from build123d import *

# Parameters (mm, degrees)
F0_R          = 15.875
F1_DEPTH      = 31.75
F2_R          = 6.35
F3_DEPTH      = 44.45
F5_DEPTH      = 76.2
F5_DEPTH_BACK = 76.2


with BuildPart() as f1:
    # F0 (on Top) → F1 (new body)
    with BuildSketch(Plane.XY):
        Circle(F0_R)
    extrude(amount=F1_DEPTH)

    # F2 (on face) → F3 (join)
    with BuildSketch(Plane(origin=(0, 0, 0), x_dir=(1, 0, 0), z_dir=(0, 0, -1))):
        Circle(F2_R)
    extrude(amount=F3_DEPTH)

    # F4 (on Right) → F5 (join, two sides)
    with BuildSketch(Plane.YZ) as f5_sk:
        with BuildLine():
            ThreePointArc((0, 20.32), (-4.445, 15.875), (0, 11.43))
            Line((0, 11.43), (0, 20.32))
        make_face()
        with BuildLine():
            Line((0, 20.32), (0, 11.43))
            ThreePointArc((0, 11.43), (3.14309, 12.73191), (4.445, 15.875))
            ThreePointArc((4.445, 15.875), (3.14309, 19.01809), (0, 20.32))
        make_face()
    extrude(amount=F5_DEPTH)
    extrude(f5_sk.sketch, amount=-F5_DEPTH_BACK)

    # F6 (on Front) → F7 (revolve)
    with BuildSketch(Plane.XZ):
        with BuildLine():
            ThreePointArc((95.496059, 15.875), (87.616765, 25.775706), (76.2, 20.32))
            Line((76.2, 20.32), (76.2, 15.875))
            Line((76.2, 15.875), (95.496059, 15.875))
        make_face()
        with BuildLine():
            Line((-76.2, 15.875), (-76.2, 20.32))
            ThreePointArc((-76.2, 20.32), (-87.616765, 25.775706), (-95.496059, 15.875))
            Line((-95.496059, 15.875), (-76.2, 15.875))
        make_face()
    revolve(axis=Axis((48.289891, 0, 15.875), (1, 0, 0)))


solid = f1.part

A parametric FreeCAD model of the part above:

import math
import FreeCAD as App
import Part
import Sketcher
Q = App.Units.Quantity

doc = App.newDocument("Part")
params = doc.addObject("Spreadsheet::Sheet", "Params")
for row, (alias, value) in enumerate([
    ("sketch1_diameter", "1.25 in"),
    ("pad1_length", "1.25 in"),
    ("sketch2_diameter", "0.5 in"),
    ("pad2_length", "1.75 in"),
    ("sketch3_radius", "0.175 in"),
    ("pad3_length", "3 in"),
    ("pad3_length2", "3 in"),
    ("sketch4_radius", "0.4 in"),
    ("sketch4_height", "0.175 in"),
    ("revolution_angle", "360 deg"),
], start=1):
    params.set(f"A{row}", alias)
    params.set(f"B{row}", "=" + value)
    params.setAlias(f"B{row}", alias)

body = doc.addObject("PartDesign::Body", "Body")

sketch1 = body.newObject("Sketcher::SketchObject", "Sketch")
sketch1.AttachmentSupport = (doc.getObject("XY_Plane"), [""])
sketch1.MapMode = "FlatFace"
sketch1.addGeometry(Part.Circle(App.Vector(0, 0, 0), App.Vector(0, 0, 1), 16), False)
sketch1.addConstraint(Sketcher.Constraint("Coincident", 0, 3, -1, 1))
sketch1.addConstraint(Sketcher.Constraint("Diameter", 0, Q("1.25 in")))
sketch1.setExpression("Constraints[1]", "Params.sketch1_diameter")
pad1 = body.newObject("PartDesign::Pad", "Pad")
pad1.Profile = sketch1
pad1.setExpression("Length", "Params.pad1_length")

sketch2 = body.newObject("Sketcher::SketchObject", "Sketch001")
sketch2.AttachmentSupport = (doc.getObject("XY_Plane"), [""])
sketch2.MapMode = "FlatFace"
sketch2.addGeometry(Part.Circle(App.Vector(0, 0, 0), App.Vector(0, 0, 1), 6), False)
sketch2.addConstraint(Sketcher.Constraint("Coincident", 0, 3, -1, 1))
sketch2.addConstraint(Sketcher.Constraint("Diameter", 0, Q("0.5 in")))
sketch2.setExpression("Constraints[1]", "Params.sketch2_diameter")
pad2 = body.newObject("PartDesign::Pad", "Pad001")
pad2.Profile = sketch2
pad2.setExpression("Length", "Params.pad2_length")
pad2.Reversed = True

sketch3 = body.newObject("Sketcher::SketchObject", "Sketch002")
sketch3.AttachmentSupport = (doc.getObject("YZ_Plane"), [""])
sketch3.MapMode = "FlatFace"
sketch3.addGeometry(Part.ArcOfCircle(Part.Circle(App.Vector(0, 15.9, 0), App.Vector(0, 0, 1), 4.4), math.radians(90), math.radians(270)), False)
sketch3.addGeometry(Part.ArcOfCircle(Part.Circle(App.Vector(0, 15.9, 0), App.Vector(0, 0, 1), 4.4), math.radians(-90), math.radians(0)), False)
sketch3.addGeometry(Part.ArcOfCircle(Part.Circle(App.Vector(0, 15.9, 0), App.Vector(0, 0, 1), 4.4), math.radians(0), math.radians(90)), False)
sketch3.addConstraint(Sketcher.Constraint("Tangent", 0, 2, 1, 1))
sketch3.addConstraint(Sketcher.Constraint("Tangent", 1, 2, 2, 1))
sketch3.addConstraint(Sketcher.Constraint("Tangent", 2, 2, 0, 1))
sketch3.addConstraint(Sketcher.Constraint("PointOnObject", 0, 3, -2))
sketch3.addConstraint(Sketcher.Constraint("PointOnObject", 0, 2, -2))
sketch3.addConstraint(Sketcher.Constraint("PointOnObject", 2, 2, -2))
sketch3.addConstraint(Sketcher.Constraint("Horizontal", 2, 3, 1, 2))
sketch3.addConstraint(Sketcher.Constraint("Radius", 0, Q("0.175 in")))
sketch3.addConstraint(Sketcher.Constraint("DistanceY", -1, 1, 2, 2, Q("0.8 in")))
sketch3.setExpression("Constraints[7]", "Params.sketch3_radius")
pad3 = body.newObject("PartDesign::Pad", "Pad002")
pad3.Profile = sketch3
pad3.Type = "TwoLengths"
pad3.setExpression("Length", "Params.pad3_length")
pad3.setExpression("Length2", "Params.pad3_length2")

sketch4 = body.newObject("Sketcher::SketchObject", "Sketch003")
sketch4.AttachmentSupport = (doc.getObject("XZ_Plane"), [""])
sketch4.MapMode = "FlatFace"
sketch4.addGeometry(Part.ArcOfCircle(Part.Circle(App.Vector(85.3, 15.9, 0), App.Vector(0, 0, 1), 10.2), math.radians(0), math.radians(154)), False)
sketch4.addGeometry(Part.LineSegment(App.Vector(76.2, 20.3, 0), App.Vector(76.2, 15.9, 0)), False)
sketch4.addGeometry(Part.LineSegment(App.Vector(76.2, 15.9, 0), App.Vector(95.5, 15.9, 0)), False)
sketch4.addGeometry(Part.LineSegment(App.Vector(-76.2, 15.9, 0), App.Vector(-76.2, 20.3, 0)), False)
sketch4.addGeometry(Part.ArcOfCircle(Part.Circle(App.Vector(-85.3, 15.9, 0), App.Vector(0, 0, 1), 10.2), math.radians(26), math.radians(180)), False)
sketch4.addGeometry(Part.LineSegment(App.Vector(-95.5, 15.9, 0), App.Vector(-76.2, 15.9, 0)), False)
sketch4.addGeometry(Part.LineSegment(App.Vector(-95.5, 15.9, 0), App.Vector(95.5, 15.9, 0)), True)
sketch4.addConstraint(Sketcher.Constraint("Coincident", 0, 2, 1, 1))
sketch4.addConstraint(Sketcher.Constraint("Coincident", 1, 2, 2, 1))
sketch4.addConstraint(Sketcher.Constraint("Coincident", 2, 2, 0, 1))
sketch4.addConstraint(Sketcher.Constraint("Coincident", 3, 2, 4, 1))
sketch4.addConstraint(Sketcher.Constraint("Coincident", 4, 2, 5, 1))
sketch4.addConstraint(Sketcher.Constraint("Coincident", 5, 2, 3, 1))
sketch4.addConstraint(Sketcher.Constraint("Vertical", 1))
sketch4.addConstraint(Sketcher.Constraint("Horizontal", 2))
sketch4.addConstraint(Sketcher.Constraint("Vertical", 3))
sketch4.addConstraint(Sketcher.Constraint("Horizontal", 5))
sketch4.addConstraint(Sketcher.Constraint("Horizontal", 6))
sketch4.addConstraint(Sketcher.Constraint("Coincident", 6, 1, 4, 2))
sketch4.addConstraint(Sketcher.Constraint("Coincident", 6, 2, 2, 2))
sketch4.addConstraint(Sketcher.Constraint("Equal", 0, 4))
sketch4.addConstraint(Sketcher.Constraint("Symmetric", 0, 3, 4, 3, -2))
sketch4.addConstraint(Sketcher.Constraint("Horizontal", 4, 3, 1, 2))
sketch4.addConstraint(Sketcher.Constraint("Horizontal", 0, 2, 3, 2))
sketch4.addConstraint(Sketcher.Constraint("Radius", 0, Q("0.4 in")))
sketch4.addConstraint(Sketcher.Constraint("DistanceX", -1, 1, 0, 2, Q("3 in")))
sketch4.addConstraint(Sketcher.Constraint("DistanceY", -1, 1, 0, 2, Q("0.8 in")))
sketch4.addConstraint(Sketcher.Constraint("DistanceY", 1, 2, 1, 1, Q("0.175 in")))
sketch4.setExpression("Constraints[17]", "Params.sketch4_radius")
sketch4.setExpression("Constraints[20]", "Params.sketch4_height")
revolution = body.newObject("PartDesign::Revolution", "Revolution")
revolution.Profile = sketch4
revolution.ReferenceAxis = (sketch4, ["Axis0"])
revolution.setExpression("Angle", "Params.revolution_angle")

doc.recompute()
